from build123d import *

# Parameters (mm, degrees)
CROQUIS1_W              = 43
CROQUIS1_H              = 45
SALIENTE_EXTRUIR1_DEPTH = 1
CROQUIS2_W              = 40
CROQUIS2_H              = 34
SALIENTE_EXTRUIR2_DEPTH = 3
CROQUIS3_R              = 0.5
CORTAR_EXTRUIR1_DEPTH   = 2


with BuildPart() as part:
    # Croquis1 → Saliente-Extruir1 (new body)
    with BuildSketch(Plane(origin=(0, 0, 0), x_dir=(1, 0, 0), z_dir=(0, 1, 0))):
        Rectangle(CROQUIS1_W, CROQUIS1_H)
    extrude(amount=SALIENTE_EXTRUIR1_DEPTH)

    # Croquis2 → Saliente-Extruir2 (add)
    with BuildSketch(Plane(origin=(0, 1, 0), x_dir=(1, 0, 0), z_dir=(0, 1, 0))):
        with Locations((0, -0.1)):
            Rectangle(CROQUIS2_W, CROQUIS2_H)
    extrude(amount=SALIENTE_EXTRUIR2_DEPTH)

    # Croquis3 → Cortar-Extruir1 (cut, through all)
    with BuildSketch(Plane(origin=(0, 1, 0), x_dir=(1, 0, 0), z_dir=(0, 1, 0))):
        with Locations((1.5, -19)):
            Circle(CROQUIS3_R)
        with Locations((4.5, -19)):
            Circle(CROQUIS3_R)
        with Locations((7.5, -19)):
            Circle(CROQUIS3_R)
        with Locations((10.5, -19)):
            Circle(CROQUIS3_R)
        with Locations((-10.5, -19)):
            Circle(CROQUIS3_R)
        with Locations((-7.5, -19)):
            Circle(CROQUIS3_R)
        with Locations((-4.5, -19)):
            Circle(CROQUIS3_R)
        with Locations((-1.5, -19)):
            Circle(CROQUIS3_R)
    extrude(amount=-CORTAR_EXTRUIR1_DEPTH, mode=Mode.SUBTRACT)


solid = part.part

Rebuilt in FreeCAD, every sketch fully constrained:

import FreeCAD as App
import Part
import Sketcher

V = App.Vector
Q = App.Units.Quantity

doc = App.newDocument("Part")
body = doc.addObject("PartDesign::Body", "Body")

# Sketch on XZ plane
sketch1 = body.newObject("Sketcher::SketchObject", "Sketch")
sketch1.AttachmentSupport = (doc.getObject("XZ_Plane"), [""])
sketch1.MapMode = "FlatFace"
sketch1.addGeometry(Part.LineSegment(V(-22, -22, 0), V(-22, 22, 0)), False)
sketch1.addGeometry(Part.LineSegment(V(-22, 22, 0), V(22, 22, 0)), False)
sketch1.addGeometry(Part.LineSegment(V(22, 22, 0), V(22, -22, 0)), False)
sketch1.addGeometry(Part.LineSegment(V(22, -22, 0), V(-22, -22, 0)), False)
sketch1.addConstraint(Sketcher.Constraint("Coincident", 0, 2, 1, 1))
sketch1.addConstraint(Sketcher.Constraint("Coincident", 1, 2, 2, 1))
sketch1.addConstraint(Sketcher.Constraint("Coincident", 2, 2, 3, 1))
sketch1.addConstraint(Sketcher.Constraint("Coincident", 3, 2, 0, 1))
sketch1.addConstraint(Sketcher.Constraint("Vertical", 0))
sketch1.addConstraint(Sketcher.Constraint("Horizontal", 1))
sketch1.addConstraint(Sketcher.Constraint("Vertical", 2))
sketch1.addConstraint(Sketcher.Constraint("Horizontal", 3))
sketch1.addConstraint(Sketcher.Constraint("Symmetric", 0, 2, 2, 2, -1, 1))
sketch1.addConstraint(Sketcher.Constraint("DistanceX", 1, 1, 1, 2, Q("43 mm")))
sketch1.addConstraint(Sketcher.Constraint("DistanceY", 0, 1, 0, 2, Q("45 mm")))
pad1 = body.newObject("PartDesign::Pad", "Pad")
pad1.Profile = sketch1
pad1.Length = 1
pad1.Reversed = True

# Sketch on XZ plane
sketch2 = body.newObject("Sketcher::SketchObject", "Sketch001")
sketch2.AttachmentSupport = (doc.getObject("XZ_Plane"), [""])
sketch2.MapMode = "FlatFace"
sketch2.AttachmentOffset = App.Placement(V(0, 0, -1), App.Rotation())
sketch2.addGeometry(Part.LineSegment(V(-20, -17, 0), V(-20, 17, 0)), False)
sketch2.addGeometry(Part.LineSegment(V(-20, 17, 0), V(20, 17, 0)), False)
sketch2.addGeometry(Part.LineSegment(V(20, 17, 0), V(20, -17, 0)), False)
sketch2.addGeometry(Part.LineSegment(V(20, -17, 0), V(-20, -17, 0)), False)
sketch2.addConstraint(Sketcher.Constraint("Coincident", 0, 2, 1, 1))
sketch2.addConstraint(Sketcher.Constraint("Coincident", 1, 2, 2, 1))
sketch2.addConstraint(Sketcher.Constraint("Coincident", 2, 2, 3, 1))
sketch2.addConstraint(Sketcher.Constraint("Coincident", 3, 2, 0, 1))
sketch2.addConstraint(Sketcher.Constraint("Vertical", 0))
sketch2.addConstraint(Sketcher.Constraint("Horizontal", 1))
sketch2.addConstraint(Sketcher.Constraint("Vertical", 2))
sketch2.addConstraint(Sketcher.Constraint("Horizontal", 3))
sketch2.addConstraint(Sketcher.Constraint("DistanceX", 1, 1, 1, 2, Q("40 mm")))
sketch2.addConstraint(Sketcher.Constraint("DistanceY", 0, 1, 0, 2, Q("34 mm")))
sketch2.addConstraint(Sketcher.Constraint("DistanceX", 0, 2, -1, 1, Q("20 mm")))
sketch2.addConstraint(Sketcher.Constraint("DistanceY", -1, 1, 0, 2, Q("17.1 mm")))
pad2 = body.newObject("PartDesign::Pad", "Pad001")
pad2.Profile = sketch2
pad2.Length = 3
pad2.Reversed = True

# Sketch on XZ plane
sketch3 = body.newObject("Sketcher::SketchObject", "Sketch002")
sketch3.AttachmentSupport = (doc.getObject("XZ_Plane"), [""])
sketch3.MapMode = "FlatFace"
sketch3.AttachmentOffset = App.Placement(V(0, 0, -1), App.Rotation())
sketch3.addGeometry(Part.Circle(V(1.5, 19, 0), V(0, 0, 1), 0.5), False)
sketch3.addGeometry(Part.Circle(V(4.5, 19, 0), V(0, 0, 1), 0.5), False)
sketch3.addGeometry(Part.Circle(V(7.5, 19, 0), V(0, 0, 1), 0.5), False)
sketch3.addGeometry(Part.Circle(V(10.5, 19, 0), V(0, 0, 1), 0.5), False)
sketch3.addGeometry(Part.Circle(V(-10.5, 19, 0), V(0, 0, 1), 0.5), False)
sketch3.addGeometry(Part.Circle(V(-7.5, 19, 0), V(0, 0, 1), 0.5), False)
sketch3.addGeometry(Part.Circle(V(-4.5, 19, 0), V(0, 0, 1), 0.5), False)
sketch3.addGeometry(Part.Circle(V(-1.5, 19, 0), V(0, 0, 1), 0.5), False)
sketch3.addConstraint(Sketcher.Constraint("Equal", 0, 1))
sketch3.addConstraint(Sketcher.Constraint("Equal", 1, 2))
sketch3.addConstraint(Sketcher.Constraint("Equal", 2, 3))
sketch3.addConstraint(Sketcher.Constraint("Equal", 3, 4))
sketch3.addConstraint(Sketcher.Constraint("Equal", 4, 5))
sketch3.addConstraint(Sketcher.Constraint("Equal", 5, 6))
sketch3.addConstraint(Sketcher.Constraint("Equal", 6, 7))
sketch3.addConstraint(Sketcher.Constraint("Symmetric", 3, 3, 4, 3, -2))
sketch3.addConstraint(Sketcher.Constraint("Symmetric", 2, 3, 5, 3, -2))
sketch3.addConstraint(Sketcher.Constraint("Symmetric", 1, 3, 6, 3, -2))
sketch3.addConstraint(Sketcher.Constraint("Symmetric", 0, 3, 7, 3, -2))
sketch3.addConstraint(Sketcher.Constraint("Horizontal", 0, 3, 1, 3))
sketch3.addConstraint(Sketcher.Constraint("Horizontal", 1, 3, 2, 3))
sketch3.addConstraint(Sketcher.Constraint("Horizontal", 2, 3, 3, 3))
sketch3.addConstraint(Sketcher.Constraint("Diameter", 0, Q("1 mm")))
sketch3.addConstraint(Sketcher.Constraint("DistanceY", -1, 1, 0, 3, Q("19 mm")))
sketch3.addConstraint(Sketcher.Constraint("DistanceX", 0, 3, 1, 3, Q("3 mm")))
sketch3.addConstraint(Sketcher.Constraint("DistanceX", 1, 3, 2, 3, Q("3 mm")))
sketch3.addConstraint(Sketcher.Constraint("DistanceX", 2, 3, 3, 3, Q("3 mm")))
sketch3.addConstraint(Sketcher.Constraint("DistanceX", 4, 3, 0, 3, Q("12 mm")))
pocket1 = body.newObject("PartDesign::Pocket", "Pocket")
pocket1.Profile = sketch3
pocket1.Type = "ThroughAll"
pocket1.Reversed = True

doc.recompute()
